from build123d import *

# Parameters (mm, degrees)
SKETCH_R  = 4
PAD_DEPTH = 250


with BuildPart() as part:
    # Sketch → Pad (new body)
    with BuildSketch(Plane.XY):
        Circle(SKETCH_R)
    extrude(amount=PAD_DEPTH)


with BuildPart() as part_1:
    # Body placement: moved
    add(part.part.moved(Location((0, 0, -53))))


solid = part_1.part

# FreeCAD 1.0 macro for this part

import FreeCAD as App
import Part
import Sketcher

V = App.Vector

doc = App.newDocument("Part")
body = doc.addObject("PartDesign::Body", "Body")

# Sketch on XY plane
sketch1 = body.newObject("Sketcher::SketchObject", "Sketch")
sketch1.AttachmentSupport = (doc.getObject("XY_Plane"), [""])
sketch1.MapMode = "FlatFace"
sketch1.addGeometry(Part.Circle(V(0, 0, 0), V(0, 0, 1), 4), False)
sketch1.addConstraint([
    Sketcher.Constraint("Coincident", 0, 3, -1, 1),
    Sketcher.Constraint("Diameter", 0, 8.0),
])
pad1 = body.newObject("PartDesign::Pad", "Pad")
pad1.Profile = sketch1
pad1.Length = 250
body2 = doc.addObject("PartDesign::Body", "Body001")
doc.recompute()

body.Placement = App.Placement(V(0, 0, -53), App.Rotation(V(0, 0, 1), 0))
boolean = body2.newObject("PartDesign::Boolean", "Boolean")
boolean.Type = "Fuse"
boolean.addObjects([body])

doc.recompute()
